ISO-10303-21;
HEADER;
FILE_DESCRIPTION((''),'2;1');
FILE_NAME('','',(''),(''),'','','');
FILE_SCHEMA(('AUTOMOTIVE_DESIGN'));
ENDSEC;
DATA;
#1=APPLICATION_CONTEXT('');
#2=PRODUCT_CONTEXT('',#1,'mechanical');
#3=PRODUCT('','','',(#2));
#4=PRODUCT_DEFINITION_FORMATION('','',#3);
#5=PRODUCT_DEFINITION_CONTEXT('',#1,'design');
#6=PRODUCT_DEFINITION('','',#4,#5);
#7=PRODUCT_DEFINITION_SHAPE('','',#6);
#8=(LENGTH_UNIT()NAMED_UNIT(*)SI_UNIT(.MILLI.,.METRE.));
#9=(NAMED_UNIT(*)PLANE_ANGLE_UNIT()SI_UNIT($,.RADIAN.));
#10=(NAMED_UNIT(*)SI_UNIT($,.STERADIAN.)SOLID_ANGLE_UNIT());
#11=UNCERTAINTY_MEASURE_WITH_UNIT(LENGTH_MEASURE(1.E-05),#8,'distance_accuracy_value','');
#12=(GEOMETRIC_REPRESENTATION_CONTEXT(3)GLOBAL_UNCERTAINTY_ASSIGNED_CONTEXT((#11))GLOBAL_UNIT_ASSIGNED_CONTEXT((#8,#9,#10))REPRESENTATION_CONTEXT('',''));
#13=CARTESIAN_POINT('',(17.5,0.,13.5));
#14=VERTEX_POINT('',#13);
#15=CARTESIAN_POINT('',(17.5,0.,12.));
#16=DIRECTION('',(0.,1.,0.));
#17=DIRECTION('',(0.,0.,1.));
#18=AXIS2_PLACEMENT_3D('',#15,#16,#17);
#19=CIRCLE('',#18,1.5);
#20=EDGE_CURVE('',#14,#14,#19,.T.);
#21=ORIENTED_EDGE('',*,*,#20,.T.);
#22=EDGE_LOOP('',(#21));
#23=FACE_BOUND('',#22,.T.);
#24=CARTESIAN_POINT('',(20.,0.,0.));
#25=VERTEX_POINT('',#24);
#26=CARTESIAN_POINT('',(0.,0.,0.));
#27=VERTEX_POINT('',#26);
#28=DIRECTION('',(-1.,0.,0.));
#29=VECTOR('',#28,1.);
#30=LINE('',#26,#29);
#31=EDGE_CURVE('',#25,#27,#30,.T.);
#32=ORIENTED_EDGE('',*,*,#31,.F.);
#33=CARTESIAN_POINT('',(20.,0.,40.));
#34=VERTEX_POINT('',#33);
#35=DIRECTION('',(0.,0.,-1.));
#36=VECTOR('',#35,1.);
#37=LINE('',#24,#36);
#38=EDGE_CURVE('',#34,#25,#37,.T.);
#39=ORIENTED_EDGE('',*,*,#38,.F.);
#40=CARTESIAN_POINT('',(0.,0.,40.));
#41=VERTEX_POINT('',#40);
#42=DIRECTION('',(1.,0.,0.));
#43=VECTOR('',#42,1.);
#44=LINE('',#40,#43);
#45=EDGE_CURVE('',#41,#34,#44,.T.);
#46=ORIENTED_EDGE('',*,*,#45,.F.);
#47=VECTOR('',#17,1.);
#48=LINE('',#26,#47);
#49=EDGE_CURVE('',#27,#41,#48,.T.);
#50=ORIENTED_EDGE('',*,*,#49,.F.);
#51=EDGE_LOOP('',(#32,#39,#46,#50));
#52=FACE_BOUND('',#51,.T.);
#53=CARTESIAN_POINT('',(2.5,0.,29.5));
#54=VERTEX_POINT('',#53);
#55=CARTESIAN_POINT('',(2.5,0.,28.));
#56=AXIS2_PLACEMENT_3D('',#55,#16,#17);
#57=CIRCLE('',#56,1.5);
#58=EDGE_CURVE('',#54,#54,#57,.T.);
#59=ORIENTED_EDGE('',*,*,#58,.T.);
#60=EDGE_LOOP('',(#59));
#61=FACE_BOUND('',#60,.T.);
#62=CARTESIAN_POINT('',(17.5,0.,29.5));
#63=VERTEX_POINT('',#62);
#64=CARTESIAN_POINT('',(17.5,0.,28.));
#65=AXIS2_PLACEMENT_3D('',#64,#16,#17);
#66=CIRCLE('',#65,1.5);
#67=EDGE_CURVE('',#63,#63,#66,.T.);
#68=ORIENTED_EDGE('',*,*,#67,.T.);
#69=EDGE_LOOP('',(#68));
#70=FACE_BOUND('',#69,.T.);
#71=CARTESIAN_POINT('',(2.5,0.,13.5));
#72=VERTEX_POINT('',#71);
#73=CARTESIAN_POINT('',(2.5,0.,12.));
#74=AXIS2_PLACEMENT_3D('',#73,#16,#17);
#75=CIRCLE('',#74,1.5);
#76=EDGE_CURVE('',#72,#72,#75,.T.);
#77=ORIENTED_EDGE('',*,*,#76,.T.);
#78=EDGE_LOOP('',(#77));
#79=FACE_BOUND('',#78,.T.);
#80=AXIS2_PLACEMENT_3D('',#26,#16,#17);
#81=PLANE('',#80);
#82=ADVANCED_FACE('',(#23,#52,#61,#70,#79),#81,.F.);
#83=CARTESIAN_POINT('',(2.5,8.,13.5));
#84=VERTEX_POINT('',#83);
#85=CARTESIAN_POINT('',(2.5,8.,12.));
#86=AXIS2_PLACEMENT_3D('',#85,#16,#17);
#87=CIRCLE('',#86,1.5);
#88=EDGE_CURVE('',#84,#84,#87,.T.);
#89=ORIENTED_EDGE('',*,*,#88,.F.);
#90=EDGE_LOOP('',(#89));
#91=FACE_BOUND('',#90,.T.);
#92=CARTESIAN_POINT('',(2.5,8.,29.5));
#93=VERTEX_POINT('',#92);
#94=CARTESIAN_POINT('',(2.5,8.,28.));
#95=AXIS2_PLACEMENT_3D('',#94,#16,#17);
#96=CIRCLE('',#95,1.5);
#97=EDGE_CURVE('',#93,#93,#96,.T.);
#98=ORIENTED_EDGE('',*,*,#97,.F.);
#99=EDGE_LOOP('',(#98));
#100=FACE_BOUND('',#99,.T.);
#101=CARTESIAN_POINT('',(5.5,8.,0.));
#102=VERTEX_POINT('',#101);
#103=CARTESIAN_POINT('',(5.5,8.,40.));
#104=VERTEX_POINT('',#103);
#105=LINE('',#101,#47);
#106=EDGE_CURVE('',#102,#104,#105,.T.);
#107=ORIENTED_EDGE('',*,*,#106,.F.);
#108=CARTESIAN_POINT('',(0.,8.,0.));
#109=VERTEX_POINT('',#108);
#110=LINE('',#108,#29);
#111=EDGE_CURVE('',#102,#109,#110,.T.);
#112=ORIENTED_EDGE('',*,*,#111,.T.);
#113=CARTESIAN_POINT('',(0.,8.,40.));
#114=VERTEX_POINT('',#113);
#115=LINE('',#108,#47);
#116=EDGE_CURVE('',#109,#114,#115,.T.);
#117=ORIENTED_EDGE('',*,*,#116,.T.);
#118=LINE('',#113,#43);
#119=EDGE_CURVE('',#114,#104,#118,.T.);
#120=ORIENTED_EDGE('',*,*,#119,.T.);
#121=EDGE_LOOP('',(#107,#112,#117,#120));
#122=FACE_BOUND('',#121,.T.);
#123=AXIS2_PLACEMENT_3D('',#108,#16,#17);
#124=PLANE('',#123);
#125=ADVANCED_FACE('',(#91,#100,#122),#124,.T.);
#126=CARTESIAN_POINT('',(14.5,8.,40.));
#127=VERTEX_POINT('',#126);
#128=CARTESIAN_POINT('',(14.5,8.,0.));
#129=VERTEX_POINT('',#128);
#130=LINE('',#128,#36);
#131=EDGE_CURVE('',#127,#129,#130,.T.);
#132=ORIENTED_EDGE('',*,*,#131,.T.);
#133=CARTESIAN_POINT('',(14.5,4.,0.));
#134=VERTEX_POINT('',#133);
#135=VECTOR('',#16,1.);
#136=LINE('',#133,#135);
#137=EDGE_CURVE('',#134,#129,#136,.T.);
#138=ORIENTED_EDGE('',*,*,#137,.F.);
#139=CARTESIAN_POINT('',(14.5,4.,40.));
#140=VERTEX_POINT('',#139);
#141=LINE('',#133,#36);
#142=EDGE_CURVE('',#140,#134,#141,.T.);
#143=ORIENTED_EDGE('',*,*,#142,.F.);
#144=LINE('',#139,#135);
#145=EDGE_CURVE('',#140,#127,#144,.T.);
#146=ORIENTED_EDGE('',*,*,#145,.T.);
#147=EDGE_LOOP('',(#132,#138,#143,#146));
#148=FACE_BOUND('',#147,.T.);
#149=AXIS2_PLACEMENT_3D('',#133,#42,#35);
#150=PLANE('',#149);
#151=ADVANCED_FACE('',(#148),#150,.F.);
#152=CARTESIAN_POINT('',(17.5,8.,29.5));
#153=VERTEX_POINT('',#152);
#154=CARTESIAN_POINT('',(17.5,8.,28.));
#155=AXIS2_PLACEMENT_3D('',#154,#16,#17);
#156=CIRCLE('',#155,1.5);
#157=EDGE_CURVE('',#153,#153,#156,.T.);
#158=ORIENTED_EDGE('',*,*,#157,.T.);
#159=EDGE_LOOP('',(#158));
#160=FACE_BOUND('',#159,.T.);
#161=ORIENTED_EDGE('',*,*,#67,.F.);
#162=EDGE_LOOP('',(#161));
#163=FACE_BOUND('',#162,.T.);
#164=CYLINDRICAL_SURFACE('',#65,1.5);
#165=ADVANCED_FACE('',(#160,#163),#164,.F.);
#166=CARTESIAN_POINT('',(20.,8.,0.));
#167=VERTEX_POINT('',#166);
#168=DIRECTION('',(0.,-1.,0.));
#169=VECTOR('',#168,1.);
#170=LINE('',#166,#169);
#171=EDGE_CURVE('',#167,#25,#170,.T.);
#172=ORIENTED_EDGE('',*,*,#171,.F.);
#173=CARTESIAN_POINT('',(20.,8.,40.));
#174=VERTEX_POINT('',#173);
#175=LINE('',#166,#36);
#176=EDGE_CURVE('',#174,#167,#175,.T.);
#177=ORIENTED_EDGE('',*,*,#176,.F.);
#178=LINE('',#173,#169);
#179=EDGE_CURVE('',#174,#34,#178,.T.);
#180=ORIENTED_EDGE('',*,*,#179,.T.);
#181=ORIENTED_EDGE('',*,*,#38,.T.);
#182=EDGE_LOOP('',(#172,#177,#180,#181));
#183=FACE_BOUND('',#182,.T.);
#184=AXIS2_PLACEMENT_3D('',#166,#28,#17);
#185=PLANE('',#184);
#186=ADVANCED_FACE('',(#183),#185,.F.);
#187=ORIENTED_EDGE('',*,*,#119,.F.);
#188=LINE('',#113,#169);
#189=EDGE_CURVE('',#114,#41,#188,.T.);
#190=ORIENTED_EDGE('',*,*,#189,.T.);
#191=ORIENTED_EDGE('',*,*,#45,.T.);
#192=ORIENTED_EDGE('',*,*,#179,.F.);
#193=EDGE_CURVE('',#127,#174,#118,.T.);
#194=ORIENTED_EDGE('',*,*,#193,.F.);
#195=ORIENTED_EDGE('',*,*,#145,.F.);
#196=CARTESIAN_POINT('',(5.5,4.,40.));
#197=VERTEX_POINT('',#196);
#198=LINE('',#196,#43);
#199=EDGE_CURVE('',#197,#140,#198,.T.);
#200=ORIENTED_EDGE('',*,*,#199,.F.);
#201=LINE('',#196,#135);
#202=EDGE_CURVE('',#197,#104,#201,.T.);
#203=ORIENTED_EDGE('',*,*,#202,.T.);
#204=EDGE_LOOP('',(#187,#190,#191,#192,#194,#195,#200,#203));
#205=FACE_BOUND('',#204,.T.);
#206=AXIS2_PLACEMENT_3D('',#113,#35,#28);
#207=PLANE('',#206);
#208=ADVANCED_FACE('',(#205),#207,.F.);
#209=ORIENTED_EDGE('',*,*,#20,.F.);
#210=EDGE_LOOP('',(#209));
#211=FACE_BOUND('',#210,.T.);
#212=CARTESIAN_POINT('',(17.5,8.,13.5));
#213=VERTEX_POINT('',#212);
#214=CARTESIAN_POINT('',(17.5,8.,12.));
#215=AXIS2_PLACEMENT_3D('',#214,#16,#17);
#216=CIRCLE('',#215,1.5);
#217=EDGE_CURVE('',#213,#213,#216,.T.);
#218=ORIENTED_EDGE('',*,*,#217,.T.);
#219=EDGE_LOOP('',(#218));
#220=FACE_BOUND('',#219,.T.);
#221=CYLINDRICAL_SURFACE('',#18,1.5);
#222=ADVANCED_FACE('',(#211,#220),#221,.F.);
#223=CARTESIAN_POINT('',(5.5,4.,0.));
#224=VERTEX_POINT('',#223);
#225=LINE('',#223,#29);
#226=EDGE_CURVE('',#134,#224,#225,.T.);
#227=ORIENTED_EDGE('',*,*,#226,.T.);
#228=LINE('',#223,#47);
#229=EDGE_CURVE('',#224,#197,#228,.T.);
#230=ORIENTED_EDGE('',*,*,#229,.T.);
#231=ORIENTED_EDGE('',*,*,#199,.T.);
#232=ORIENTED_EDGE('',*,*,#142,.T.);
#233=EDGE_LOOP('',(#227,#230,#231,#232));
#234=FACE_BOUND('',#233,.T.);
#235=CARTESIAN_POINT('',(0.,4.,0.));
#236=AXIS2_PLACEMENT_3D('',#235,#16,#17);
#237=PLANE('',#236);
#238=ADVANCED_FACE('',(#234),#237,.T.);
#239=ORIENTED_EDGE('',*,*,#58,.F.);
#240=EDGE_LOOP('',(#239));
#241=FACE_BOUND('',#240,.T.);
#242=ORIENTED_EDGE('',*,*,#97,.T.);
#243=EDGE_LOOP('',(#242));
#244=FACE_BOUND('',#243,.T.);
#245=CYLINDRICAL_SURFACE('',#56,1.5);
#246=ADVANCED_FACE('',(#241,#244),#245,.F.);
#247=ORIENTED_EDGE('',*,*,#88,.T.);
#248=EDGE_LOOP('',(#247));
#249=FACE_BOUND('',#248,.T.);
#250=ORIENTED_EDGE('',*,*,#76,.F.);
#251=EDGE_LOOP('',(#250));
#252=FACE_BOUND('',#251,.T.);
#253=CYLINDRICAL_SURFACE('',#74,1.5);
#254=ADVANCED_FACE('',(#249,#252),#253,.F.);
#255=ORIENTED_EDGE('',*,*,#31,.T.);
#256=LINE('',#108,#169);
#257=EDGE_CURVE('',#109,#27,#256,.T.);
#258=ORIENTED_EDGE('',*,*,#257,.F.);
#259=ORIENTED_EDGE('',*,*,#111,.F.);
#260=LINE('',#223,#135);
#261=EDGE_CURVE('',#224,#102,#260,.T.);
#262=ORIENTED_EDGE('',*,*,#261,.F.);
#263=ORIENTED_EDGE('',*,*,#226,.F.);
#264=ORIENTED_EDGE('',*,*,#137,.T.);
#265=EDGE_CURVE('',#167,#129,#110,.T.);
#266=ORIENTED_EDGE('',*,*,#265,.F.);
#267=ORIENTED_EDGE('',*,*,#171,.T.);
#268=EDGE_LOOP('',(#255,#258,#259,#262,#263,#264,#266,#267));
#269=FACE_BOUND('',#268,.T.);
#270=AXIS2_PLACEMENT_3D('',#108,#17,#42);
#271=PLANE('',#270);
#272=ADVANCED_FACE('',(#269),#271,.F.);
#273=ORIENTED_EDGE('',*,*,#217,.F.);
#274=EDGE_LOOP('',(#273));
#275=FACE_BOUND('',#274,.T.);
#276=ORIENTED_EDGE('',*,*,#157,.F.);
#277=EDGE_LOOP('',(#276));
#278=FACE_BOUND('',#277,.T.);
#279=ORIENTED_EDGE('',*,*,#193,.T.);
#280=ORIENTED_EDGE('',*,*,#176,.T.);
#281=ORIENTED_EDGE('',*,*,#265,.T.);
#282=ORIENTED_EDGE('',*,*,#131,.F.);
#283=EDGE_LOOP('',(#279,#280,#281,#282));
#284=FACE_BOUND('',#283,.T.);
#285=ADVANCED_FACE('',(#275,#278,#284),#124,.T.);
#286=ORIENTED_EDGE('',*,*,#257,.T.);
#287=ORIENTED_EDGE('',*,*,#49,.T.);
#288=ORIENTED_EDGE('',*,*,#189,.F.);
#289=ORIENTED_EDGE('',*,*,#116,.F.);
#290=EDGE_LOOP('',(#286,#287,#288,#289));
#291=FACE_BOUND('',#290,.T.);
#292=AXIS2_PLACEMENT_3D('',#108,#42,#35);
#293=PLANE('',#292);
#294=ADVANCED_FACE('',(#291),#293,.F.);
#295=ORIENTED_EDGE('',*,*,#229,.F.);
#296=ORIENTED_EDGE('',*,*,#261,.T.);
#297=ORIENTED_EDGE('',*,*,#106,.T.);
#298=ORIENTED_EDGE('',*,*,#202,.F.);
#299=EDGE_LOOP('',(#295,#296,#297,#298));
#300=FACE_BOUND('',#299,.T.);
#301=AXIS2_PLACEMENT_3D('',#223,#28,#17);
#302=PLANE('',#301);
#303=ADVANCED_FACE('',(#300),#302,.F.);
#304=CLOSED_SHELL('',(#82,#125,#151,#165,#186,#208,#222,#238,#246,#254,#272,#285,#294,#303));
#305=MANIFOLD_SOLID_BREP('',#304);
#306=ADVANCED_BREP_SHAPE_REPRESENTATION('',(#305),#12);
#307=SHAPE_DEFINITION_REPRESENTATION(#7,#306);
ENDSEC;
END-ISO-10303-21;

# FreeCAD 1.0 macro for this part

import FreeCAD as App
import Part
import Sketcher
Q = App.Units.Quantity

doc = App.newDocument("Part")
params = doc.addObject("Spreadsheet::Sheet", "Params")
for row, (alias, value) in enumerate([
    ("sketch1_width", "20 mm"),
    ("sketch1_height", "40 mm"),
    ("pad1_length", "8 mm"),
    ("sketch2_diameter", "3 mm"),
    ("sketch3_width", "9 mm"),
    ("sketch3_height", "40 mm"),
    ("pocket2_length", "4 mm"),
], start=1):
    params.set(f"A{row}", alias)
    params.set(f"B{row}", "=" + value)
    params.setAlias(f"B{row}", alias)

body = doc.addObject("PartDesign::Body", "Body")

# Sketch on XZ plane
sketch1 = body.newObject("Sketcher::SketchObject", "Sketch")
sketch1.AttachmentSupport = (doc.getObject("XZ_Plane"), [""])
sketch1.MapMode = "FlatFace"
sketch1.addGeometry([
    Part.LineSegment(App.Vector(0, 0, 0), App.Vector(0, 40, 0)),
    Part.LineSegment(App.Vector(0, 40, 0), App.Vector(20, 40, 0)),
    Part.LineSegment(App.Vector(20, 40, 0), App.Vector(20, 0, 0)),
    Part.LineSegment(App.Vector(20, 0, 0), App.Vector(0, 0, 0)),
], False)
sketch1.addConstraint([
    Sketcher.Constraint("Coincident", 0, 2, 1, 1),
    Sketcher.Constraint("Coincident", 1, 2, 2, 1),
    Sketcher.Constraint("Coincident", 2, 2, 3, 1),
    Sketcher.Constraint("Coincident", 3, 2, 0, 1),
    Sketcher.Constraint("Vertical", 0),
    Sketcher.Constraint("Horizontal", 1),
    Sketcher.Constraint("Vertical", 2),
    Sketcher.Constraint("Horizontal", 3),
    Sketcher.Constraint("Coincident", 3, 2, -1, 1),
    Sketcher.Constraint("DistanceX", 1, 1, 1, 2, Q("20 mm")),
    Sketcher.Constraint("DistanceY", 0, 1, 0, 2, Q("40 mm")),
])
sketch1.setExpression("Constraints[9]", "Params.sketch1_width")
sketch1.setExpression("Constraints[10]", "Params.sketch1_height")
pad1 = body.newObject("PartDesign::Pad", "Pad")
pad1.Profile = sketch1
pad1.setExpression("Length", "Params.pad1_length")
pad1.Reversed = True

# Sketch on XZ plane
sketch2 = body.newObject("Sketcher::SketchObject", "Sketch001")
sketch2.AttachmentSupport = (doc.getObject("XZ_Plane"), [""])
sketch2.MapMode = "FlatFace"
sketch2.AttachmentOffset = App.Placement(App.Vector(0, 0, -8), App.Rotation())
sketch2.addGeometry([
    Part.Circle(App.Vector(2.5, 28, 0), App.Vector(0, 0, 1), 1.5),
    Part.Circle(App.Vector(17.5, 28, 0), App.Vector(0, 0, 1), 1.5),
    Part.Circle(App.Vector(17.5, 12, 0), App.Vector(0, 0, 1), 1.5),
    Part.Circle(App.Vector(2.5, 12, 0), App.Vector(0, 0, 1), 1.5),
], False)
sketch2.addConstraint([
    Sketcher.Constraint("Equal", 0, 1),
    Sketcher.Constraint("Equal", 1, 2),
    Sketcher.Constraint("Equal", 2, 3),
    Sketcher.Constraint("Horizontal", 0, 3, 1, 3),
    Sketcher.Constraint("Horizontal", 2, 3, 3, 3),
    Sketcher.Constraint("Vertical", 1, 3, 2, 3),
    Sketcher.Constraint("Vertical", 0, 3, 3, 3),
    Sketcher.Constraint("Diameter", 0, Q("3 mm")),
    Sketcher.Constraint("DistanceY", -1, 1, 0, 3, Q("28 mm")),
    Sketcher.Constraint("DistanceY", -1, 1, 2, 3, Q("12 mm")),
    Sketcher.Constraint("DistanceX", 0, 3, 1, 3, Q("15 mm")),
    Sketcher.Constraint("DistanceX", -1, 1, 0, 3, Q("2.5 mm")),
])
sketch2.setExpression("Constraints[7]", "Params.sketch2_diameter")
pocket1 = body.newObject("PartDesign::Pocket", "Pocket")
pocket1.Profile = sketch2
pocket1.Type = "ThroughAll"
pocket1.Reversed = True

# Sketch on XZ plane
sketch3 = body.newObject("Sketcher::SketchObject", "Sketch002")
sketch3.AttachmentSupport = (doc.getObject("XZ_Plane"), [""])
sketch3.MapMode = "FlatFace"
sketch3.AttachmentOffset = App.Placement(App.Vector(0, 0, -8), App.Rotation())
sketch3.addGeometry([
    Part.LineSegment(App.Vector(6, 0, 0), App.Vector(6, 40, 0)),
    Part.LineSegment(App.Vector(6, 40, 0), App.Vector(14, 40, 0)),
    Part.LineSegment(App.Vector(14, 40, 0), App.Vector(14, 0, 0)),
    Part.LineSegment(App.Vector(14, 0, 0), App.Vector(6, 0, 0)),
], False)
sketch3.addConstraint([
    Sketcher.Constraint("Coincident", 0, 2, 1, 1),
    Sketcher.Constraint("Coincident", 1, 2, 2, 1),
    Sketcher.Constraint("Coincident", 2, 2, 3, 1),
    Sketcher.Constraint("Coincident", 3, 2, 0, 1),
    Sketcher.Constraint("Vertical", 0),
    Sketcher.Constraint("Horizontal", 1),
    Sketcher.Constraint("Vertical", 2),
    Sketcher.Constraint("Horizontal", 3),
    Sketcher.Constraint("PointOnObject", 2, 2, -1),
    Sketcher.Constraint("DistanceX", 1, 1, 1, 2, Q("9 mm")),
    Sketcher.Constraint("DistanceY", 0, 1, 0, 2, Q("40 mm")),
    Sketcher.Constraint("DistanceX", -1, 1, 0, 2, Q("5.5 mm")),
])
sketch3.setExpression("Constraints[9]", "Params.sketch3_width")
sketch3.setExpression("Constraints[10]", "Params.sketch3_height")
pocket2 = body.newObject("PartDesign::Pocket", "Pocket001")
pocket2.Profile = sketch3
pocket2.setExpression("Length", "Params.pocket2_length")
pocket2.Reversed = True

doc.recompute()
